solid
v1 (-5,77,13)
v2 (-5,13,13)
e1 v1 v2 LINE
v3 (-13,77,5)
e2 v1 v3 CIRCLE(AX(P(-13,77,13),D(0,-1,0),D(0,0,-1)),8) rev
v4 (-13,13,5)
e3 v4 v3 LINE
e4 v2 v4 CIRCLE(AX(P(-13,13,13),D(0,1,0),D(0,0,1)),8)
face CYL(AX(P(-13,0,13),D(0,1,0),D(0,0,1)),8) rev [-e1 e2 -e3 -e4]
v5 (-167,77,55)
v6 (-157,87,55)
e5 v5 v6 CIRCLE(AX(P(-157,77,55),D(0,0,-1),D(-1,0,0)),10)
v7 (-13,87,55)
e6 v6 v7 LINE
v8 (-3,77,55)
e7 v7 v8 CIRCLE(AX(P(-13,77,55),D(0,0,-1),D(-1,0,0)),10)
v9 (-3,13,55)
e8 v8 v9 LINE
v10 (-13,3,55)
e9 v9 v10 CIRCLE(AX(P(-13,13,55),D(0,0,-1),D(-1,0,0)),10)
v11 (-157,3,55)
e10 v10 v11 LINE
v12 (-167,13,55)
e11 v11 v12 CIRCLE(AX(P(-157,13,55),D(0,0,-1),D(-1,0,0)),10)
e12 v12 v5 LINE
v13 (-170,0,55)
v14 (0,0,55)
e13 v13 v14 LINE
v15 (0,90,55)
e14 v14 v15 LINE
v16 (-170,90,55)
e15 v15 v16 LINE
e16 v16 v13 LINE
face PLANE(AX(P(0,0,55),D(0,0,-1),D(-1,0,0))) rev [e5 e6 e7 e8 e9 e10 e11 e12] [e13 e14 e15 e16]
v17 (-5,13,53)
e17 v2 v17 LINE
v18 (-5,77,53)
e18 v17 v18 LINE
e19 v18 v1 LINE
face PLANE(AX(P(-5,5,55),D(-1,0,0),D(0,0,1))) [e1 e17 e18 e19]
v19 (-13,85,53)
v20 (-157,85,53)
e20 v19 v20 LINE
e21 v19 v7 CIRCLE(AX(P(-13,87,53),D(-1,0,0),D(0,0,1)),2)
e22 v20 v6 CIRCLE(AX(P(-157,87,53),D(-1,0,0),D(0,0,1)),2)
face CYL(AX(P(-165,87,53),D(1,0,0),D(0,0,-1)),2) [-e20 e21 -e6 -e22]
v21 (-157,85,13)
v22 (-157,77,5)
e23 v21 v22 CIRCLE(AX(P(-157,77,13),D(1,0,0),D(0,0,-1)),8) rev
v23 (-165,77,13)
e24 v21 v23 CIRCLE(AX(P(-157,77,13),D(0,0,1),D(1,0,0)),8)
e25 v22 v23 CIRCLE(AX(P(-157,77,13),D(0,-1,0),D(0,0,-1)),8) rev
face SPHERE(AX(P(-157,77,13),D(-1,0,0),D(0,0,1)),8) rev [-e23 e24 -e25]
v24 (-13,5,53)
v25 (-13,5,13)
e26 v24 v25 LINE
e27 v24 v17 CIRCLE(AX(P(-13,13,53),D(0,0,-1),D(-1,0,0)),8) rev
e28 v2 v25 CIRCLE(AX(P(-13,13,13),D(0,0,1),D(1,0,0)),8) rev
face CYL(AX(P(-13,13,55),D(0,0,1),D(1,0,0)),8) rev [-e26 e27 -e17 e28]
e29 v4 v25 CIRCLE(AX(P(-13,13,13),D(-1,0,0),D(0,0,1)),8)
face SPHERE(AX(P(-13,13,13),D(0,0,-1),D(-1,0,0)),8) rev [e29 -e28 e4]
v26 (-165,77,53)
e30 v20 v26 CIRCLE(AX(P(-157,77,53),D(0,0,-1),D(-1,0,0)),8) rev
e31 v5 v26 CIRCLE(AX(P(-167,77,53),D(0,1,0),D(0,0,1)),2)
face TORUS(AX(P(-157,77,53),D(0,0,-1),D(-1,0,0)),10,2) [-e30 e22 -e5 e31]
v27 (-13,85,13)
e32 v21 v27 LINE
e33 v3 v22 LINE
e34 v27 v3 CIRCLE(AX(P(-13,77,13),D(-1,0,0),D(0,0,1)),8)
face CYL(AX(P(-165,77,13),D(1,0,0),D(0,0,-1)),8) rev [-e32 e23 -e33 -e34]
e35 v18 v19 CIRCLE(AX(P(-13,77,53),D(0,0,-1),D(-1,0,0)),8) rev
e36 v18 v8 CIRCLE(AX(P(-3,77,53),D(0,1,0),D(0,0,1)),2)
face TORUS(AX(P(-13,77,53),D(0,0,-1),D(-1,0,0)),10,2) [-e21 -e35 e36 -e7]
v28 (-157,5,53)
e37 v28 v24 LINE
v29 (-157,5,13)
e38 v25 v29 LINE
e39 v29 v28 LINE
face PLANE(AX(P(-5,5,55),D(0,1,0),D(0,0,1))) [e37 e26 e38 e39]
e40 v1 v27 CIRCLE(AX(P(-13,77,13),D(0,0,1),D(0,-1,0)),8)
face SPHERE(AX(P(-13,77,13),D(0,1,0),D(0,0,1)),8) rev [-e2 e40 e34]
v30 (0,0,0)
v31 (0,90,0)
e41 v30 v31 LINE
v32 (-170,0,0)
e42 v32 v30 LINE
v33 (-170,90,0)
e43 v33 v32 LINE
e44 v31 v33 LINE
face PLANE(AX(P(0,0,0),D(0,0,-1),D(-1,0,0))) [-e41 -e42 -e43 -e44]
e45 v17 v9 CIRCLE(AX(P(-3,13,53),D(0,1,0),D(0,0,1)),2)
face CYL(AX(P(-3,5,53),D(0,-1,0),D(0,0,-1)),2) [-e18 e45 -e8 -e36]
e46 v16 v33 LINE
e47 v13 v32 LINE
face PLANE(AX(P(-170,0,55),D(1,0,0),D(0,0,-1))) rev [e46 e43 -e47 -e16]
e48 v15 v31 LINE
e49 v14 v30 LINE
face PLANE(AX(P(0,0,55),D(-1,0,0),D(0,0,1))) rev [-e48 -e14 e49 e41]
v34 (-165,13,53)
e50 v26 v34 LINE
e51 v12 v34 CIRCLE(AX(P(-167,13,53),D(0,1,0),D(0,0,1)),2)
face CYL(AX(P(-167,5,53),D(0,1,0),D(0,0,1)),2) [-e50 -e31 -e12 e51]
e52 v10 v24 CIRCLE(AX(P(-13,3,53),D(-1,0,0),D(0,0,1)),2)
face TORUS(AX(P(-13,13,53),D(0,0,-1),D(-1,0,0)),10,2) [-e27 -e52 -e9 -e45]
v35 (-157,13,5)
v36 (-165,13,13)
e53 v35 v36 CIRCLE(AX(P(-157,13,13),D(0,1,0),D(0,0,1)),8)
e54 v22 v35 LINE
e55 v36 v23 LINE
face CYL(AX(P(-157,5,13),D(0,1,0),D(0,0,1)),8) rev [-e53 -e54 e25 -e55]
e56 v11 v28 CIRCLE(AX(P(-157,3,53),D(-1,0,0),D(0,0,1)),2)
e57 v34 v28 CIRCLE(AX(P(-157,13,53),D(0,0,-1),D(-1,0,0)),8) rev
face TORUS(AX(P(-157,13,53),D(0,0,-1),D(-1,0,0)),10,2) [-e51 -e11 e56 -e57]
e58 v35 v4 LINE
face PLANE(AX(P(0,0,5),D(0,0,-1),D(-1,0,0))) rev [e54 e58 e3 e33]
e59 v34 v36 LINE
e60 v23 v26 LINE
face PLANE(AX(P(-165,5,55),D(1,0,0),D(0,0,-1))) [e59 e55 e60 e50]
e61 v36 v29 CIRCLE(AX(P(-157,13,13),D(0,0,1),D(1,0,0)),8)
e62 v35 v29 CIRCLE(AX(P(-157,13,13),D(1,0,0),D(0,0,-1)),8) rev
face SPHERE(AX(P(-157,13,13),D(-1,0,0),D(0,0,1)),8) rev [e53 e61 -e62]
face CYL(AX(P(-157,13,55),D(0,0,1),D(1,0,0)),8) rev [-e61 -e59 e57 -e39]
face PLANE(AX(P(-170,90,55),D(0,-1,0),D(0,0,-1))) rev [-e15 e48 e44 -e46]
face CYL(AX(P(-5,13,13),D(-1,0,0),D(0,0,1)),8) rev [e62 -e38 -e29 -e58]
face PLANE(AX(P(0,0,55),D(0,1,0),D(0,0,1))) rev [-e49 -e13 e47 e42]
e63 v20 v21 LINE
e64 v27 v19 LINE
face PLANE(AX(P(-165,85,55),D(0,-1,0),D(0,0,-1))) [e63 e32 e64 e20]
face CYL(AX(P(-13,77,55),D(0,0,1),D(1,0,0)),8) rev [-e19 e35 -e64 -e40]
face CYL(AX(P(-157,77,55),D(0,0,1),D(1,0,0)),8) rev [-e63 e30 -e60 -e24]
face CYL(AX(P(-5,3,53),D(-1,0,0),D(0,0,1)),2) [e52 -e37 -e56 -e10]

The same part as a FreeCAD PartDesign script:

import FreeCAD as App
import Part
import Sketcher
from FreeCAD import Vector
Q = App.Units.Quantity


def edges_at(feature, points):
    """Names of the edges that pass closest to the given points."""
    edges = feature.Shape.Edges
    near = lambda p: min(range(len(edges)), key=lambda i: edges[i].distToShape(Part.Vertex(*p))[0])
    return sorted({f"Edge{near(p) + 1}" for p in points})

doc = App.newDocument("Part")
body = doc.addObject("PartDesign::Body", "Body")

sketch1 = body.newObject("Sketcher::SketchObject", "Sketch")
sketch1.AttachmentSupport = (doc.getObject("XY_Plane"), [""])
sketch1.MapMode = "FlatFace"
sketch1.addGeometry([
    Part.LineSegment(Vector(-165, 5, 0), Vector(-5, 5, 0)),
    Part.LineSegment(Vector(-5, 5, 0), Vector(-5, 85, 0)),
    Part.LineSegment(Vector(-5, 85, 0), Vector(-165, 85, 0)),
    Part.LineSegment(Vector(-165, 85, 0), Vector(-165, 5, 0)),
], False)
sketch1.addConstraint([
    Sketcher.Constraint("Coincident", 0, 2, 1, 1),
    Sketcher.Constraint("Coincident", 1, 2, 2, 1),
    Sketcher.Constraint("Coincident", 2, 2, 3, 1),
    Sketcher.Constraint("Coincident", 3, 2, 0, 1),
    Sketcher.Constraint("Horizontal", 0),
    Sketcher.Constraint("Vertical", 1),
    Sketcher.Constraint("Horizontal", 2),
    Sketcher.Constraint("Vertical", 3),
    Sketcher.Constraint("DistanceX", 0, 1, 0, 2, Q("160 mm")),
    Sketcher.Constraint("DistanceY", 1, 1, 1, 2, Q("80 mm")),
    Sketcher.Constraint("DistanceX", 0, 2, -1, 1, Q("5 mm")),
    Sketcher.Constraint("DistanceY", -1, 1, 0, 2, Q("5 mm")),
])
pad1 = body.newObject("PartDesign::Pad", "Pad")
pad1.Profile = sketch1
pad1.Length = 5

sketch2 = body.newObject("Sketcher::SketchObject", "Sketch001")
sketch2.AttachmentSupport = (doc.getObject("XY_Plane"), [""])
sketch2.MapMode = "FlatFace"
sketch2.addGeometry([
    Part.LineSegment(Vector(-170, 0, 0), Vector(0, 0, 0)),
    Part.LineSegment(Vector(0, 0, 0), Vector(0, 90, 0)),
    Part.LineSegment(Vector(0, 90, 0), Vector(-170, 90, 0)),
    Part.LineSegment(Vector(-170, 90, 0), Vector(-170, 0, 0)),
    Part.LineSegment(Vector(-5, 85, 0), Vector(-5, 5, 0)),
    Part.LineSegment(Vector(-5, 5, 0), Vector(-165, 5, 0)),
    Part.LineSegment(Vector(-165, 5, 0), Vector(-165, 85, 0)),
    Part.LineSegment(Vector(-165, 85, 0), Vector(-5, 85, 0)),
], False)
sketch2.addConstraint([
    Sketcher.Constraint("Coincident", 0, 2, 1, 1),
    Sketcher.Constraint("Coincident", 1, 2, 2, 1),
    Sketcher.Constraint("Coincident", 2, 2, 3, 1),
    Sketcher.Constraint("Coincident", 3, 2, 0, 1),
    Sketcher.Constraint("Coincident", 4, 2, 5, 1),
    Sketcher.Constraint("Coincident", 5, 2, 6, 1),
    Sketcher.Constraint("Coincident", 6, 2, 7, 1),
    Sketcher.Constraint("Coincident", 7, 2, 4, 1),
    Sketcher.Constraint("Horizontal", 0),
    Sketcher.Constraint("Vertical", 1),
    Sketcher.Constraint("Horizontal", 2),
    Sketcher.Constraint("Vertical", 3),
    Sketcher.Constraint("Vertical", 4),
    Sketcher.Constraint("Horizontal", 5),
    Sketcher.Constraint("Vertical", 6),
    Sketcher.Constraint("Horizontal", 7),
    Sketcher.Constraint("Coincident", 0, 2, -1, 1),
    Sketcher.Constraint("DistanceX", 0, 1, 0, 2, Q("170 mm")),
    Sketcher.Constraint("DistanceX", 5, 2, 5, 1, Q("160 mm")),
    Sketcher.Constraint("DistanceY", 1, 1, 1, 2, Q("90 mm")),
    Sketcher.Constraint("DistanceY", 4, 2, 4, 1, Q("80 mm")),
    Sketcher.Constraint("DistanceX", 4, 2, -1, 1, Q("5 mm")),
    Sketcher.Constraint("DistanceY", -1, 1, 4, 2, Q("5 mm")),
])
pad2 = body.newObject("PartDesign::Pad", "Pad001")
pad2.Profile = sketch2
pad2.Length = 55
doc.recompute()

fillet = body.newObject("PartDesign::Fillet", "Fillet")
fillet.Base = (pad2, edges_at(pad2, [
    (-165, 45, 5),
    (-5, 85, 30),
    (-165, 85, 30),
    (-165, 5, 30),
    (-5, 5, 30),
    (-85, 5, 5),
    (-5, 45, 5),
    (-85, 85, 5),
]))
fillet.Radius = 8
doc.recompute()

fillet2 = body.newObject("PartDesign::Fillet", "Fillet001")
fillet2.Base = (fillet, edges_at(fillet, [
    (-85, 5, 55),
    (-5, 45, 55),
    (-85, 85, 55),
    (-165, 45, 55),
    (-7.343, 7.343, 55),
    (-7.343, 82.657, 55),
    (-162.657, 82.657, 55),
    (-162.657, 7.343, 55),
]))
fillet2.Radius = 2

doc.recompute()
